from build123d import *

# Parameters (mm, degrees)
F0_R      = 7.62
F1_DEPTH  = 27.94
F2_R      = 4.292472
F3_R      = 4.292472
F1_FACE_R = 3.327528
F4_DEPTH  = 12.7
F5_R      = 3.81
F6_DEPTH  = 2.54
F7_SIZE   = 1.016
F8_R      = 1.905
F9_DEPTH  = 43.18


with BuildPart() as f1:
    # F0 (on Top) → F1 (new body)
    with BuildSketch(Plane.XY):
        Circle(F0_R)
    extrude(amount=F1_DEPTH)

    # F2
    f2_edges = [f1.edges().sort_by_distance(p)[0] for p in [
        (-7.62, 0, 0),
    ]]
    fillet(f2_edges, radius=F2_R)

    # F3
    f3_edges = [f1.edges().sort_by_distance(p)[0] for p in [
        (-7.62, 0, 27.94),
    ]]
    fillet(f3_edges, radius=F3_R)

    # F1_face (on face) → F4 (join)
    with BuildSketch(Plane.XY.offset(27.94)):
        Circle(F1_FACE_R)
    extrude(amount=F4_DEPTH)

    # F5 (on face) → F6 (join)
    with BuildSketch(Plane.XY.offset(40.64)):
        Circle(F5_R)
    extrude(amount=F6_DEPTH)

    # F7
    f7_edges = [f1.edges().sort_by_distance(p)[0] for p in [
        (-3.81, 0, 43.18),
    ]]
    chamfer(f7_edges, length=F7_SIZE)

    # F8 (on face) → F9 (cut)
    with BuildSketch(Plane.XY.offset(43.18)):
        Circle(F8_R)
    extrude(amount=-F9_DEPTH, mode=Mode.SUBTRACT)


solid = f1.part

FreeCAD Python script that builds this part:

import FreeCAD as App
import Part
import Sketcher

V = App.Vector
Q = App.Units.Quantity


def edges_at(feature, points):
    """Names of the edges that pass closest to the given points."""
    edges = feature.Shape.Edges
    near = lambda p: min(range(len(edges)), key=lambda i: edges[i].distToShape(Part.Vertex(*p))[0])
    return sorted({f"Edge{near(p) + 1}" for p in points})

doc = App.newDocument("Part")
params = doc.addObject("Spreadsheet::Sheet", "Params")
for row, (alias, value) in enumerate([
    ("sketch1_diameter", "0.6 in"),
    ("pad1_length", "1.1 in"),
    ("fillet_radius", "4.292472 mm"),
    ("fillet2_radius", "4.292472 mm"),
    ("pad2_length", "0.5 in"),
    ("sketch3_diameter", "0.3 in"),
    ("pad3_length", "0.1 in"),
    ("chamfer_size", "0.04 in"),
    ("sketch4_diameter", "0.15 in"),
    ("pocket1_length", "1.7 in"),
], start=1):
    params.set(f"A{row}", alias)
    params.set(f"B{row}", "=" + value)
    params.setAlias(f"B{row}", alias)

body = doc.addObject("PartDesign::Body", "Body")

sketch1 = doc.addObject("Sketcher::SketchObject", "Sketch")
body.addObject(sketch1)
sketch1.AttachmentSupport = (doc.XY_Plane, [""])
sketch1.MapMode = "FlatFace"
sketch1.addGeometry(Part.Circle(V(0, 0, 0), V(0, 0, 1), 8), False)
sketch1.addConstraint([
    Sketcher.Constraint("Coincident", 0, 3, -1, 1),
    Sketcher.Constraint("Diameter", 0, Q("0.6 in")),
])
sketch1.setExpression("Constraints[1]", "Params.sketch1_diameter")
pad1 = doc.addObject("PartDesign::Pad", "Pad")
body.addObject(pad1)
pad1.Profile = sketch1
pad1.setExpression("Length", "Params.pad1_length")
doc.recompute()

fillet = doc.addObject("PartDesign::Fillet", "Fillet")
body.addObject(fillet)
fillet.Base = (pad1, edges_at(pad1, [(-7.62, 0, 0)]))
fillet.setExpression("Radius", "Params.fillet_radius")
doc.recompute()

fillet2 = doc.addObject("PartDesign::Fillet", "Fillet001")
body.addObject(fillet2)
fillet2.Base = (fillet, edges_at(fillet, [(-7.62, 0, 27.94)]))
fillet2.setExpression("Radius", "Params.fillet2_radius")

sketch2 = doc.addObject("Sketcher::SketchObject", "Sketch001")
body.addObject(sketch2)
sketch2.AttachmentSupport = (doc.XY_Plane, [""])
sketch2.MapMode = "FlatFace"
sketch2.AttachmentOffset = App.Placement(V(0, 0, 1.1 * 25.4), App.Rotation())
sketch2.addGeometry(Part.Circle(V(0, 0, 0), V(0, 0, 1), 3.3), False)
sketch2.addConstraint([
    Sketcher.Constraint("Coincident", 0, 3, -1, 1),
    Sketcher.Constraint("Diameter", 0, Q("6.655056 mm")),
])
pad2 = doc.addObject("PartDesign::Pad", "Pad001")
body.addObject(pad2)
pad2.Profile = sketch2
pad2.setExpression("Length", "Params.pad2_length")

sketch3 = doc.addObject("Sketcher::SketchObject", "Sketch002")
body.addObject(sketch3)
sketch3.AttachmentSupport = (doc.XY_Plane, [""])
sketch3.MapMode = "FlatFace"
sketch3.AttachmentOffset = App.Placement(V(0, 0, 1.6 * 25.4), App.Rotation())
sketch3.addGeometry(Part.Circle(V(0, 0, 0), V(0, 0, 1), 3.8), False)
sketch3.addConstraint([
    Sketcher.Constraint("Coincident", 0, 3, -1, 1),
    Sketcher.Constraint("Diameter", 0, Q("0.3 in")),
])
sketch3.setExpression("Constraints[1]", "Params.sketch3_diameter")
pad3 = doc.addObject("PartDesign::Pad", "Pad002")
body.addObject(pad3)
pad3.Profile = sketch3
pad3.setExpression("Length", "Params.pad3_length")
doc.recompute()

chamfer = doc.addObject("PartDesign::Chamfer", "Chamfer")
body.addObject(chamfer)
chamfer.Base = (pad3, edges_at(pad3, [(-3.81, 0, 43.18)]))
chamfer.setExpression("Size", "Params.chamfer_size")

sketch4 = doc.addObject("Sketcher::SketchObject", "Sketch003")
body.addObject(sketch4)
sketch4.AttachmentSupport = (doc.XY_Plane, [""])
sketch4.MapMode = "FlatFace"
sketch4.AttachmentOffset = App.Placement(V(0, 0, 1.7 * 25.4), App.Rotation())
sketch4.addGeometry(Part.Circle(V(0, 0, 0), V(0, 0, 1), 1.9), False)
sketch4.addConstraint([
    Sketcher.Constraint("Coincident", 0, 3, -1, 1),
    Sketcher.Constraint("Diameter", 0, Q("0.15 in")),
])
sketch4.setExpression("Constraints[1]", "Params.sketch4_diameter")
pocket1 = doc.addObject("PartDesign::Pocket", "Pocket")
body.addObject(pocket1)
pocket1.Profile = sketch4
pocket1.setExpression("Length", "Params.pocket1_length")

doc.recompute()
